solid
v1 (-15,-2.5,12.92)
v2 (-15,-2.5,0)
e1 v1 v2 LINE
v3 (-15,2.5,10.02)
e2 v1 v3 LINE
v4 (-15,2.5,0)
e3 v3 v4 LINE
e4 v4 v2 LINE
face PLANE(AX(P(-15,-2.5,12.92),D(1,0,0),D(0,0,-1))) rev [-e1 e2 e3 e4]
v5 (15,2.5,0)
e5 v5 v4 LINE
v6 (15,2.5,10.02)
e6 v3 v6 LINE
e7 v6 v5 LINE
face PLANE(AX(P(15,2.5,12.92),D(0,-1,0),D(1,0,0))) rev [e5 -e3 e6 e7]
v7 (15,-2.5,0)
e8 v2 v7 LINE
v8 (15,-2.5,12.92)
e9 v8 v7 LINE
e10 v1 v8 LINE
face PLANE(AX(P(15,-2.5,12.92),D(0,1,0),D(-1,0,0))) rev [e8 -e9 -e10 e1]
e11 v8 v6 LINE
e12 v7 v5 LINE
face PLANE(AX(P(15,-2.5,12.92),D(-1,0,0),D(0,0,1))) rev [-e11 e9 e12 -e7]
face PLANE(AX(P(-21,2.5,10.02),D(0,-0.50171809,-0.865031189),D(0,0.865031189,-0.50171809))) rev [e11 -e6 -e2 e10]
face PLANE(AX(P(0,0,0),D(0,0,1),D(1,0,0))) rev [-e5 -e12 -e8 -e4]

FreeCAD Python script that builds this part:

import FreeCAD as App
import Part
import Sketcher

V = App.Vector


def add_polygon(sketch, points):
    """Adds a closed chain of lines whose ends are joined by coincident constraints."""
    first, n = sketch.GeometryCount, len(points)
    for a, b in zip(points, points[1:] + points[:1]):
        sketch.addGeometry(Part.LineSegment(App.Vector(*a, 0), App.Vector(*b, 0)), False)
    for i in range(n):
        sketch.addConstraint(Sketcher.Constraint("Coincident", first + i, 2, first + (i + 1) % n, 1))

doc = App.newDocument("Part")
params = doc.addObject("Spreadsheet::Sheet", "Params")
for row, (alias, value) in enumerate([
    ("sketch1_width", "30 mm"),
    ("sketch1_height", "5 mm"),
    ("pad1_length", "12.92 mm"),
    ("sketch2_width", "5 mm"),
    ("sketch2_height", "2.9 mm"),
    ("pocket1_length", "36 mm"),
], start=1):
    params.set(f"A{row}", alias)
    params.set(f"B{row}", "=" + value)
    params.setAlias(f"B{row}", alias)

body = doc.addObject("PartDesign::Body", "Body")

# Sketch on XY plane
sketch1 = body.newObject("Sketcher::SketchObject", "Sketch")
sketch1.AttachmentSupport = (doc.getObject("XY_Plane"), [""])
sketch1.MapMode = "FlatFace"
add_polygon(sketch1, [(-15, 2), (-15, -2), (15, -2), (15, 2)])  # lines 0-3
sketch1.addConstraint([
    Sketcher.Constraint("Vertical", 0),
    Sketcher.Constraint("Horizontal", 1),
    Sketcher.Constraint("Vertical", 2),
    Sketcher.Constraint("Horizontal", 3),
    Sketcher.Constraint("Symmetric", 0, 2, 2, 2, -1, 1),
    Sketcher.Constraint("DistanceX", 1, 1, 1, 2, 30.0),
    Sketcher.Constraint("DistanceY", 0, 2, 0, 1, 5.0),
])
sketch1.setExpression("Constraints[9]", "Params.sketch1_width")
sketch1.setExpression("Constraints[10]", "Params.sketch1_height")
pad1 = body.newObject("PartDesign::Pad", "Pad")
pad1.Profile = sketch1
pad1.setExpression("Length", "Params.pad1_length")

# Sketch on YZ plane
sketch2 = body.newObject("Sketcher::SketchObject", "Sketch001")
sketch2.AttachmentSupport = (doc.getObject("YZ_Plane"), [""])
sketch2.MapMode = "FlatFace"
sketch2.AttachmentOffset = App.Placement(V(0, 0, 15), App.Rotation())
add_polygon(sketch2, [(-2.5, 12.9), (2.5, 10), (2.5, 12.9)])  # lines 0-2
sketch2.addConstraint([
    Sketcher.Constraint("Vertical", 1),
    Sketcher.Constraint("Horizontal", 2),
    Sketcher.Constraint("DistanceX", 2, 2, 2, 1, 5.0),
    Sketcher.Constraint("DistanceY", 1, 1, 1, 2, 2.9),
    Sketcher.Constraint("DistanceX", -1, 1, 0, 2, 2.5),
    Sketcher.Constraint("DistanceY", -1, 1, 0, 2, 10.02),
])
sketch2.setExpression("Constraints[5]", "Params.sketch2_width")
sketch2.setExpression("Constraints[6]", "Params.sketch2_height")
pocket1 = body.newObject("PartDesign::Pocket", "Pocket")
pocket1.Profile = sketch2
pocket1.setExpression("Length", "Params.pocket1_length")

doc.recompute()
